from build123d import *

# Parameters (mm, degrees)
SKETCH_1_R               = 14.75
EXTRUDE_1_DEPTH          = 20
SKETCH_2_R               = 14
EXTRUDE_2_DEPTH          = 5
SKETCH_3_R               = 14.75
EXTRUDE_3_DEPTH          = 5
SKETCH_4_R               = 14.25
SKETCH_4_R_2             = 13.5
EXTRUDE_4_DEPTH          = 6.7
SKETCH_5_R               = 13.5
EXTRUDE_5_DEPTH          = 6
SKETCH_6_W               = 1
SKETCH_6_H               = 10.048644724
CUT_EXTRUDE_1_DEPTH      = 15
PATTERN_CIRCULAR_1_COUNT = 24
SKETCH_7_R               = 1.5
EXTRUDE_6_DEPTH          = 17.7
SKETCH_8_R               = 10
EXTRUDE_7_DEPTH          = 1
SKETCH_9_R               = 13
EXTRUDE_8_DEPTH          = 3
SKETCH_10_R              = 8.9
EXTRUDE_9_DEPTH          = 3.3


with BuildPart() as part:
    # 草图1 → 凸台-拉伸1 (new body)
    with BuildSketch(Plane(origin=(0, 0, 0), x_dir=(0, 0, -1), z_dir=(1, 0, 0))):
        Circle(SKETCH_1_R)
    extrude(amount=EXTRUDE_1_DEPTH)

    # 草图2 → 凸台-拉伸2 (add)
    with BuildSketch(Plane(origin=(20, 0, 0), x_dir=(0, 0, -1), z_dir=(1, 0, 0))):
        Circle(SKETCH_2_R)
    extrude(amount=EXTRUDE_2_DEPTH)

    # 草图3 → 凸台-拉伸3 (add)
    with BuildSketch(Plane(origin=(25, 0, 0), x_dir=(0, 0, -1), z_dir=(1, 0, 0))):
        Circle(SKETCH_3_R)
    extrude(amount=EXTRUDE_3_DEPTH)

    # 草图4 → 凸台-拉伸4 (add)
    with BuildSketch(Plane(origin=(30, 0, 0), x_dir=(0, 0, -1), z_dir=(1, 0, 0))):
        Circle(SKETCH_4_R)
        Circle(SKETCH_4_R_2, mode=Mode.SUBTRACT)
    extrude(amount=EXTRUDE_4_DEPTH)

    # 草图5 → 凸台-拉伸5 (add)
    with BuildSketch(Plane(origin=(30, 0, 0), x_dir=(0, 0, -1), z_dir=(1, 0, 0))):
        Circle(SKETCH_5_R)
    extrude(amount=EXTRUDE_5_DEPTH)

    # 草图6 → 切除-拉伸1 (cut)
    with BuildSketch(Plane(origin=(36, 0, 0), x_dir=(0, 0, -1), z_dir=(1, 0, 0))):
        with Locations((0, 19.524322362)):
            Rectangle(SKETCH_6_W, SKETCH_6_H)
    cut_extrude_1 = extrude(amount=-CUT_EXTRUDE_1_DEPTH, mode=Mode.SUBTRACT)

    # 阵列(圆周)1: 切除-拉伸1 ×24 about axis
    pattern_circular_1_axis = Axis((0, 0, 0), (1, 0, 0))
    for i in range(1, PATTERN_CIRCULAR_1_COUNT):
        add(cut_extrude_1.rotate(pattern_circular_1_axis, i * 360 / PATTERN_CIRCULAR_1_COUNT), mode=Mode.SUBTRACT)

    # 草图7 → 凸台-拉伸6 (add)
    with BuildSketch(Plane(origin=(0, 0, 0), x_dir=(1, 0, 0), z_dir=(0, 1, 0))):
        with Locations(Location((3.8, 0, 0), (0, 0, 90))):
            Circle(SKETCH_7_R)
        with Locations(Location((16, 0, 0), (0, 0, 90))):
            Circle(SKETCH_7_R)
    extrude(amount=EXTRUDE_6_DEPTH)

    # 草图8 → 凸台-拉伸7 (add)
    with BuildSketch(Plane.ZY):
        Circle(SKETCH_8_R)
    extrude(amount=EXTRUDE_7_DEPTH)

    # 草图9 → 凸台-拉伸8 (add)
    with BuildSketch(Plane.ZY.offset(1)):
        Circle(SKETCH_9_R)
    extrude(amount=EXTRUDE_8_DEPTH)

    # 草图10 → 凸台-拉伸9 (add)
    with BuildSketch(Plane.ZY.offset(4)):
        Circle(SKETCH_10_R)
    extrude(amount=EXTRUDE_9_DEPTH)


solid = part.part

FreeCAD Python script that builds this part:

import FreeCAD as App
import Part
import Sketcher

V = App.Vector
Q = App.Units.Quantity

doc = App.newDocument("Part")
body = doc.addObject("PartDesign::Body", "Body")

sketch1 = body.newObject("Sketcher::SketchObject", "Sketch")
sketch1.AttachmentSupport = (doc.getObject("YZ_Plane"), [""])
sketch1.MapMode = "FlatFace"
sketch1.addGeometry(Part.Circle(V(0, 0, 0), V(0, 0, 1), 14.75), False)
sketch1.addConstraint([
    Sketcher.Constraint("Coincident", 0, 3, -1, 1),
    Sketcher.Constraint("Diameter", 0, Q("29.5 mm")),
])
pad1 = body.newObject("PartDesign::Pad", "Pad")
pad1.Profile = sketch1
pad1.Length = 20

sketch2 = body.newObject("Sketcher::SketchObject", "Sketch001")
sketch2.AttachmentSupport = (doc.getObject("YZ_Plane"), [""])
sketch2.MapMode = "FlatFace"
sketch2.AttachmentOffset = App.Placement(V(0, 0, 20), App.Rotation())
sketch2.addGeometry(Part.Circle(V(0, 0, 0), V(0, 0, 1), 14), False)
sketch2.addConstraint([
    Sketcher.Constraint("Coincident", 0, 3, -1, 1),
    Sketcher.Constraint("Diameter", 0, Q("28 mm")),
])
pad2 = body.newObject("PartDesign::Pad", "Pad001")
pad2.Profile = sketch2
pad2.Length = 5

sketch3 = body.newObject("Sketcher::SketchObject", "Sketch002")
sketch3.AttachmentSupport = (doc.getObject("YZ_Plane"), [""])
sketch3.MapMode = "FlatFace"
sketch3.AttachmentOffset = App.Placement(V(0, 0, 25), App.Rotation())
sketch3.addGeometry(Part.Circle(V(0, 0, 0), V(0, 0, 1), 14.75), False)
sketch3.addConstraint([
    Sketcher.Constraint("Coincident", 0, 3, -1, 1),
    Sketcher.Constraint("Diameter", 0, Q("29.5 mm")),
])
pad3 = body.newObject("PartDesign::Pad", "Pad002")
pad3.Profile = sketch3
pad3.Length = 5

sketch4 = body.newObject("Sketcher::SketchObject", "Sketch003")
sketch4.AttachmentSupport = (doc.getObject("YZ_Plane"), [""])
sketch4.MapMode = "FlatFace"
sketch4.AttachmentOffset = App.Placement(V(0, 0, 30), App.Rotation())
sketch4.addGeometry([
    Part.Circle(V(0, 0, 0), V(0, 0, 1), 14.25),
    Part.Circle(V(0, 0, 0), V(0, 0, 1), 13.5),
], False)
sketch4.addConstraint([
    Sketcher.Constraint("Coincident", 0, 3, -1, 1),
    Sketcher.Constraint("Coincident", 1, 3, -1, 1),
    Sketcher.Constraint("Diameter", 1, Q("27 mm")),
    Sketcher.Constraint("Diameter", 0, Q("28.5 mm")),
])
pad4 = body.newObject("PartDesign::Pad", "Pad003")
pad4.Profile = sketch4
pad4.Length = 6.7

sketch5 = body.newObject("Sketcher::SketchObject", "Sketch004")
sketch5.AttachmentSupport = (doc.getObject("YZ_Plane"), [""])
sketch5.MapMode = "FlatFace"
sketch5.AttachmentOffset = App.Placement(V(0, 0, 30), App.Rotation())
sketch5.addGeometry(Part.Circle(V(0, 0, 0), V(0, 0, 1), 13.5), False)
sketch5.addConstraint([
    Sketcher.Constraint("Coincident", 0, 3, -1, 1),
    Sketcher.Constraint("Diameter", 0, Q("27 mm")),
])
pad5 = body.newObject("PartDesign::Pad", "Pad004")
pad5.Profile = sketch5
pad5.Length = 6

sketch6 = body.newObject("Sketcher::SketchObject", "Sketch005")
sketch6.AttachmentSupport = (doc.getObject("YZ_Plane"), [""])
sketch6.MapMode = "FlatFace"
sketch6.AttachmentOffset = App.Placement(V(0, 0, 36), App.Rotation())
sketch6.addGeometry([
    Part.LineSegment(V(24.548645, 0.5, 0), V(14.5, 0.5, 0)),
    Part.LineSegment(V(14.5, 0.5, 0), V(14.5, -0.5, 0)),
    Part.LineSegment(V(14.5, -0.5, 0), V(24.548645, -0.5, 0)),
    Part.LineSegment(V(24.548645, -0.5, 0), V(24.548645, 0.5, 0)),
], False)
sketch6.addConstraint([
    Sketcher.Constraint("Coincident", 0, 2, 1, 1),
    Sketcher.Constraint("Coincident", 1, 2, 2, 1),
    Sketcher.Constraint("Coincident", 2, 2, 3, 1),
    Sketcher.Constraint("Coincident", 3, 2, 0, 1),
    Sketcher.Constraint("Horizontal", 0),
    Sketcher.Constraint("Vertical", 1),
    Sketcher.Constraint("Horizontal", 2),
    Sketcher.Constraint("Vertical", 3),
    Sketcher.Constraint("DistanceY", 1, 2, 1, 1, Q("1 mm")),
    Sketcher.Constraint("DistanceX", -1, 1, 0, 2, Q("14.5 mm")),
    Sketcher.Constraint("DistanceY", -1, 1, 0, 2, Q("0.5 mm")),
    Sketcher.Constraint("DistanceX", 0, 2, 0, 1, Q("10.048645 mm")),
])
pocket1 = body.newObject("PartDesign::Pocket", "Pocket")
pocket1.Profile = sketch6
pocket1.Length = 15
doc.recompute()

polarpattern = body.newObject("PartDesign::PolarPattern", "PolarPattern")
polarpattern.Originals = [pocket1]
polarpattern.Axis = (doc.getObject("X_Axis"), [""])
polarpattern.Angle = 360
polarpattern.Occurrences = 24
body.Tip = polarpattern

sketch7 = body.newObject("Sketcher::SketchObject", "Sketch006")
sketch7.AttachmentSupport = (doc.getObject("XZ_Plane"), [""])
sketch7.MapMode = "FlatFace"
sketch7.addGeometry([
    Part.Circle(V(3.8, 0, 0), V(0, 0, 1), 1.5),
    Part.Circle(V(16, 0, 0), V(0, 0, 1), 1.5),
], False)
sketch7.addConstraint([
    Sketcher.Constraint("Equal", 0, 1),
    Sketcher.Constraint("PointOnObject", 0, 3, -1),
    Sketcher.Constraint("PointOnObject", 1, 3, -1),
    Sketcher.Constraint("Diameter", 0, Q("3 mm")),
    Sketcher.Constraint("DistanceX", -1, 1, 1, 3, Q("16 mm")),
    Sketcher.Constraint("DistanceX", -1, 1, 0, 3, Q("3.8 mm")),
])
pad6 = body.newObject("PartDesign::Pad", "Pad005")
pad6.Profile = sketch7
pad6.Length = 17.7
pad6.Reversed = True

sketch8 = body.newObject("Sketcher::SketchObject", "Sketch007")
sketch8.AttachmentSupport = (doc.getObject("YZ_Plane"), [""])
sketch8.MapMode = "FlatFace"
sketch8.addGeometry(Part.Circle(V(0, 0, 0), V(0, 0, 1), 10), False)
sketch8.addConstraint([
    Sketcher.Constraint("Coincident", 0, 3, -1, 1),
    Sketcher.Constraint("Diameter", 0, Q("20 mm")),
])
pad7 = body.newObject("PartDesign::Pad", "Pad006")
pad7.Profile = sketch8
pad7.Length = 1
pad7.Reversed = True

sketch9 = body.newObject("Sketcher::SketchObject", "Sketch008")
sketch9.AttachmentSupport = (doc.getObject("YZ_Plane"), [""])
sketch9.MapMode = "FlatFace"
sketch9.AttachmentOffset = App.Placement(V(0, 0, -1), App.Rotation())
sketch9.addGeometry(Part.Circle(V(0, 0, 0), V(0, 0, 1), 13), False)
sketch9.addConstraint([
    Sketcher.Constraint("Coincident", 0, 3, -1, 1),
    Sketcher.Constraint("Diameter", 0, Q("26 mm")),
])
pad8 = body.newObject("PartDesign::Pad", "Pad007")
pad8.Profile = sketch9
pad8.Length = 3
pad8.Reversed = True

sketch10 = body.newObject("Sketcher::SketchObject", "Sketch009")
sketch10.AttachmentSupport = (doc.getObject("YZ_Plane"), [""])
sketch10.MapMode = "FlatFace"
sketch10.AttachmentOffset = App.Placement(V(0, 0, -4), App.Rotation())
sketch10.addGeometry(Part.Circle(V(0, 0, 0), V(0, 0, 1), 8.9), False)
sketch10.addConstraint([
    Sketcher.Constraint("Coincident", 0, 3, -1, 1),
    Sketcher.Constraint("Diameter", 0, Q("17.8 mm")),
])
pad9 = body.newObject("PartDesign::Pad", "Pad008")
pad9.Profile = sketch10
pad9.Length = 3.3
pad9.Reversed = True

doc.recompute()
